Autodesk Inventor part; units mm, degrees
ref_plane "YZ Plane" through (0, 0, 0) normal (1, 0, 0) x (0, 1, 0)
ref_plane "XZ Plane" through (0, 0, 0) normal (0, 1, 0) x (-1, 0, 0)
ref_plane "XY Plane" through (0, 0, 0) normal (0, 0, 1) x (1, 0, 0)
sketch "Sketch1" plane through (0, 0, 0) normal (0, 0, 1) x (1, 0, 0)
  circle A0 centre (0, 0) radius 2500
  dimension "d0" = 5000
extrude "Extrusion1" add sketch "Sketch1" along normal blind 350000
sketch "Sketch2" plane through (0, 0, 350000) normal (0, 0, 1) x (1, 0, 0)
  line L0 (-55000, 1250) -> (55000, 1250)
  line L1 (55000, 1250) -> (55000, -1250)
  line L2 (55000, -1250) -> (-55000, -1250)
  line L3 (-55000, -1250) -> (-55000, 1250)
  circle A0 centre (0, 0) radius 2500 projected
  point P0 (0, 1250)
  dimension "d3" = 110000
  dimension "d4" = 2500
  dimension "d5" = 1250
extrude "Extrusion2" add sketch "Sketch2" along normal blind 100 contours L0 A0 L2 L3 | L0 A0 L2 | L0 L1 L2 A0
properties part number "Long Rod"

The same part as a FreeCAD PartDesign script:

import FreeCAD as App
import Part
import Sketcher
from FreeCAD import Vector
Q = App.Units.Quantity

doc = App.newDocument("Part")
body = doc.addObject("PartDesign::Body", "Body")

# Sketch on XY plane
sketch1 = body.newObject("Sketcher::SketchObject", "Sketch")
sketch1.AttachmentSupport = (doc.getObject("XY_Plane"), [""])
sketch1.MapMode = "FlatFace"
sketch1.addGeometry(Part.Circle(Vector(0, 0, 0), Vector(0, 0, 1), 2500), False)
sketch1.addConstraint([
    Sketcher.Constraint("Coincident", 0, 3, -1, 1),
    Sketcher.Constraint("Diameter", 0, Q("5000 mm")),
])
pad1 = body.newObject("PartDesign::Pad", "Pad")
pad1.Profile = sketch1
pad1.Length = 350000

# Sketch on XY plane
sketch2 = body.newObject("Sketcher::SketchObject", "Sketch001")
sketch2.AttachmentSupport = (doc.getObject("XY_Plane"), [""])
sketch2.MapMode = "FlatFace"
sketch2.AttachmentOffset = App.Placement(Vector(0, 0, 350000), App.Rotation())
sketch2.addGeometry([
    Part.LineSegment(Vector(-55000, 1250, 0), Vector(-55000, -1250, 0)),
    Part.LineSegment(Vector(-55000, -1250, 0), Vector(55000, -1250, 0)),
    Part.LineSegment(Vector(55000, -1250, 0), Vector(55000, 1250, 0)),
    Part.LineSegment(Vector(55000, 1250, 0), Vector(-55000, 1250, 0)),
], False)
sketch2.addConstraint([
    Sketcher.Constraint("Coincident", 0, 2, 1, 1),
    Sketcher.Constraint("Coincident", 1, 2, 2, 1),
    Sketcher.Constraint("Coincident", 2, 2, 3, 1),
    Sketcher.Constraint("Coincident", 3, 2, 0, 1),
    Sketcher.Constraint("Vertical", 0),
    Sketcher.Constraint("Horizontal", 1),
    Sketcher.Constraint("Vertical", 2),
    Sketcher.Constraint("Horizontal", 3),
    Sketcher.Constraint("Symmetric", 0, 2, 2, 2, -1, 1),
    Sketcher.Constraint("DistanceX", 1, 1, 1, 2, Q("110000 mm")),
    Sketcher.Constraint("DistanceY", 0, 2, 0, 1, Q("2500 mm")),
])
pad2 = body.newObject("PartDesign::Pad", "Pad001")
pad2.Profile = sketch2
pad2.Length = 100

doc.recompute()
